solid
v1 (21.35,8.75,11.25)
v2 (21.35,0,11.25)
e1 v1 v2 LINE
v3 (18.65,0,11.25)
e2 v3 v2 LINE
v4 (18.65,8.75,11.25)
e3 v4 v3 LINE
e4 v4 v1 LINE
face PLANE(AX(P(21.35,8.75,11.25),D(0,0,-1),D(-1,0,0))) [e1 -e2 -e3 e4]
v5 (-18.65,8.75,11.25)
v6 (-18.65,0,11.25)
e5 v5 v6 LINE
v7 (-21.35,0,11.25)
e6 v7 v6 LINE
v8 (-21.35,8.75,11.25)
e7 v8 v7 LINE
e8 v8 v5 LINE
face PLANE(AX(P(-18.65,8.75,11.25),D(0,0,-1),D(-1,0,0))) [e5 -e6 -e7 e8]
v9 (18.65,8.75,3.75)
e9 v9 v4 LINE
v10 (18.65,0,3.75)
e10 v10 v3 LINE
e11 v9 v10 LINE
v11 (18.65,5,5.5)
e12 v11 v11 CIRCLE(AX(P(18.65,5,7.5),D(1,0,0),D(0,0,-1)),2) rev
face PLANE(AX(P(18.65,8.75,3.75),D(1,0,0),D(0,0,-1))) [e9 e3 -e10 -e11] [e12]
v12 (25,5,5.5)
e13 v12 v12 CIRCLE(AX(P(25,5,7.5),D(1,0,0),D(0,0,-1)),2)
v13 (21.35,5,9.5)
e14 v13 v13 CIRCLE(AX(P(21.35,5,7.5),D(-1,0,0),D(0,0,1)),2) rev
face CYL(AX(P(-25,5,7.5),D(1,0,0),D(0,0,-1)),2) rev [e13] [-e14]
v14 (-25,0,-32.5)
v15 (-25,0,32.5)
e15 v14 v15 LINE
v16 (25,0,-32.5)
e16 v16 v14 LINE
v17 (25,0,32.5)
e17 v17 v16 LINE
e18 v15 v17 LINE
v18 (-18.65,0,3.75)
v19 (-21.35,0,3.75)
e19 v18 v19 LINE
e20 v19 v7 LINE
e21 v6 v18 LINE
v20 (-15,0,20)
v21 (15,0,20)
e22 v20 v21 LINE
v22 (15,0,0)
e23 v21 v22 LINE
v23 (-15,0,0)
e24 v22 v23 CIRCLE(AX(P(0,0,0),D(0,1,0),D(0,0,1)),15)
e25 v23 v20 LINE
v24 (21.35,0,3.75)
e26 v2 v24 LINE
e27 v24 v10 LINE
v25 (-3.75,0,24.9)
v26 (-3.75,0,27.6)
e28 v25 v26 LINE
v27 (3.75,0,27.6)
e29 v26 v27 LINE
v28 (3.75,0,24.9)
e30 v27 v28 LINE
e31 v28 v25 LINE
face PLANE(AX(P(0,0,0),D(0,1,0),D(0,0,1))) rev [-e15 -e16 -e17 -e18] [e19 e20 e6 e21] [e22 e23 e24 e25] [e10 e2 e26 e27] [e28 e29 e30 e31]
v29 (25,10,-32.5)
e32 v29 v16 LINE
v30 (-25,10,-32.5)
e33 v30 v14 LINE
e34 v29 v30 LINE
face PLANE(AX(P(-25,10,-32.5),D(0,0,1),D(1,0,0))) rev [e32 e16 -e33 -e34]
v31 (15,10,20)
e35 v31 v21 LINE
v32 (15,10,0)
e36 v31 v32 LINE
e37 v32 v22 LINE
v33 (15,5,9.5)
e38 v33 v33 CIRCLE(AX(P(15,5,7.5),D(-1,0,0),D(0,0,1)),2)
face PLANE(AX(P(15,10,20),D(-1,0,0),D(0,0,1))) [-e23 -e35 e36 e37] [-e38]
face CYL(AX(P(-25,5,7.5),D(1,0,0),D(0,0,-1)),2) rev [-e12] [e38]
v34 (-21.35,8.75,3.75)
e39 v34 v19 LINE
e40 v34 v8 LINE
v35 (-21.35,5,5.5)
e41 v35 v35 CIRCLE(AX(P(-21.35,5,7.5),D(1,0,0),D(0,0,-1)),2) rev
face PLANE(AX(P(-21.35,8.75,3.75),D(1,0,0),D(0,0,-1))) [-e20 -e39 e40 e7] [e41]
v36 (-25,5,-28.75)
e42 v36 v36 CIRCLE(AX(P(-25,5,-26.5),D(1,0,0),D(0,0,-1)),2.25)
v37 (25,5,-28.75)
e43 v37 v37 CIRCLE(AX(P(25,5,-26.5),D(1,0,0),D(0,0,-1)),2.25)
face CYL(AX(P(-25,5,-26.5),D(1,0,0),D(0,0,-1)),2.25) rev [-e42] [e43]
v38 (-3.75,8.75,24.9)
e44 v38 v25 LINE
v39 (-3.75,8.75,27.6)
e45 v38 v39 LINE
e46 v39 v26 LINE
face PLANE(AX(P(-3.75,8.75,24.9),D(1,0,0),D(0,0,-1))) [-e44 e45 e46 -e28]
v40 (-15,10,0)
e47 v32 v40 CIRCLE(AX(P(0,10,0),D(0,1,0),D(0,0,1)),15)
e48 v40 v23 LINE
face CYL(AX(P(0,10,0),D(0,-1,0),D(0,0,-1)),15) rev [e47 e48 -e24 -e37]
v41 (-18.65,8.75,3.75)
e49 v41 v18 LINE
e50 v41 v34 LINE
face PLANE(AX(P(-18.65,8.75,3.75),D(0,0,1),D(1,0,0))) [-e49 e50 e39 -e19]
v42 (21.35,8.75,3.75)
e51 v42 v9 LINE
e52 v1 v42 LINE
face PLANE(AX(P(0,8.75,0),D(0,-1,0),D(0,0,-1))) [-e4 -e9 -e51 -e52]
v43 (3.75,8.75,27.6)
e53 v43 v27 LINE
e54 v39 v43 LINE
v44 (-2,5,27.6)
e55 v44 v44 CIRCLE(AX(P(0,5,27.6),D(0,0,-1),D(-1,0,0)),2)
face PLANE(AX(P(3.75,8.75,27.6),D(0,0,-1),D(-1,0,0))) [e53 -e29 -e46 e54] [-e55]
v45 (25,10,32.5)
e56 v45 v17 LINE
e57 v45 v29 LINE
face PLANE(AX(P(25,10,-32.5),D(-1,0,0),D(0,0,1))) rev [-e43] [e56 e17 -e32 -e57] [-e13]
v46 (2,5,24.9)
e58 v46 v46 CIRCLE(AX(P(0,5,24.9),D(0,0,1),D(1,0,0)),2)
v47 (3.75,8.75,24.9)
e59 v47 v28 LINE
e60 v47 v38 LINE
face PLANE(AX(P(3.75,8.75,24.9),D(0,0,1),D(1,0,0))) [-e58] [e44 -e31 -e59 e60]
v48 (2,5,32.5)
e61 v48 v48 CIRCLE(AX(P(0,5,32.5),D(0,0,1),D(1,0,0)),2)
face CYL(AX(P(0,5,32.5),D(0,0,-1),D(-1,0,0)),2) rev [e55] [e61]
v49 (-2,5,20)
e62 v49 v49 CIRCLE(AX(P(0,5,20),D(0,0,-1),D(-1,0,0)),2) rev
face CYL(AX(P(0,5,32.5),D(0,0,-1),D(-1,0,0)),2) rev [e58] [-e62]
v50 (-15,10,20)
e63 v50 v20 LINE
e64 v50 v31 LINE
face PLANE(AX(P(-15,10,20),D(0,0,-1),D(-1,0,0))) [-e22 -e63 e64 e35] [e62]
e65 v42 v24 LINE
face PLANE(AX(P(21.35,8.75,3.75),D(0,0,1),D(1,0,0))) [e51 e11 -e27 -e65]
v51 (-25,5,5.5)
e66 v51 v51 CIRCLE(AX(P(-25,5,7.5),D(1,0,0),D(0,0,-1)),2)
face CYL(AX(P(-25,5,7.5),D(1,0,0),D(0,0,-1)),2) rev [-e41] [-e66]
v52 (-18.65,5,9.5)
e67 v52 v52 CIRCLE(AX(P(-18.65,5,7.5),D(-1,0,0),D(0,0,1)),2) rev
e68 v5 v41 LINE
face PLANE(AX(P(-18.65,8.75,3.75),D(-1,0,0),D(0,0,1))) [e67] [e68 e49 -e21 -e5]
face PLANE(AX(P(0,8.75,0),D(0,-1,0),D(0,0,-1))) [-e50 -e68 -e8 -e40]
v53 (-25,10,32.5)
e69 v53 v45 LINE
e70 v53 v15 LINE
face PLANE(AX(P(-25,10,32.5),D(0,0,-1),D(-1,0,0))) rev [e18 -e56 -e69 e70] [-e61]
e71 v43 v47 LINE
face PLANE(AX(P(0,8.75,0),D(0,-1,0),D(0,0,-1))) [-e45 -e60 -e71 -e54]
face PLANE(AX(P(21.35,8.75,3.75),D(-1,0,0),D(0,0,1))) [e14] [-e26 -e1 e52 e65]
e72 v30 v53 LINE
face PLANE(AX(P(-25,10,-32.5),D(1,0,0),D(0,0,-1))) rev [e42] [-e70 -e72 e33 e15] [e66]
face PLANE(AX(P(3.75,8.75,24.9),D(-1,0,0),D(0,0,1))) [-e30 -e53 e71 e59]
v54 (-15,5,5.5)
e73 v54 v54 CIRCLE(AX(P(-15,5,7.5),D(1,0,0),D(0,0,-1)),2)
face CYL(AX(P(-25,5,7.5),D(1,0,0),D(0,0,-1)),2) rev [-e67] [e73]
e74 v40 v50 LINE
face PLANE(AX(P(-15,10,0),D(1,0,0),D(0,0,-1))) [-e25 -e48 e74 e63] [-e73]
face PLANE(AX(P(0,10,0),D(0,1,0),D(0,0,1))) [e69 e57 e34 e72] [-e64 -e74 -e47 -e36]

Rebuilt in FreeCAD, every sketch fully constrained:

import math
import FreeCAD as App
import Part
import Sketcher

V = App.Vector
Q = App.Units.Quantity


def add_polygon(sketch, points):
    """Adds a closed chain of lines whose ends are joined by coincident constraints."""
    first, n = sketch.GeometryCount, len(points)
    for a, b in zip(points, points[1:] + points[:1]):
        sketch.addGeometry(Part.LineSegment(App.Vector(*a, 0), App.Vector(*b, 0)), False)
    for i in range(n):
        sketch.addConstraint(Sketcher.Constraint("Coincident", first + i, 2, first + (i + 1) % n, 1))

doc = App.newDocument("Part")
body = doc.addObject("PartDesign::Body", "Body")

sketch1 = doc.addObject("Sketcher::SketchObject", "Sketch")
body.addObject(sketch1)
sketch1.AttachmentSupport = (doc.XZ_Plane, [""])
sketch1.MapMode = "FlatFace"
add_polygon(sketch1, [(-25, -32.5), (-25, 32.5), (25, 32.5), (25, -32.5)])
sketch1.addGeometry(Part.LineSegment(V(-15, 20, 0), V(-15, 0, 0)), False)
sketch1.addGeometry(Part.ArcOfCircle(Part.Circle(V(0, 0, 0), V(0, 0, 1), 15), math.radians(180), math.radians(360)), False)
sketch1.addGeometry(Part.LineSegment(V(15, 0, 0), V(15, 20, 0)), False)
sketch1.addGeometry(Part.LineSegment(V(15, 20, 0), V(-15, 20, 0)), False)
sketch1.addConstraint([
    Sketcher.Constraint("Tangent", 4, 2, 5, 1),
    Sketcher.Constraint("Tangent", 5, 2, 6, 1),
    Sketcher.Constraint("Coincident", 6, 2, 7, 1),
    Sketcher.Constraint("Coincident", 7, 2, 4, 1),
    Sketcher.Constraint("Vertical", 0),
    Sketcher.Constraint("Horizontal", 1),
    Sketcher.Constraint("Vertical", 2),
    Sketcher.Constraint("Horizontal", 3),
    Sketcher.Constraint("Vertical", 4),
    Sketcher.Constraint("Vertical", 6),
    Sketcher.Constraint("Horizontal", 7),
    Sketcher.Constraint("Coincident", 5, 3, -1, 1),
    Sketcher.Constraint("Symmetric", 0, 2, 2, 2, -1, 1),
    Sketcher.Constraint("Radius", 5, Q("15 mm")),
    Sketcher.Constraint("DistanceX", 1, 1, 1, 2, Q("50 mm")),
    Sketcher.Constraint("DistanceY", 0, 1, 0, 2, Q("65 mm")),
    Sketcher.Constraint("DistanceY", 4, 2, 4, 1, Q("20 mm")),
])
pad1 = doc.addObject("PartDesign::Pad", "Pad")
body.addObject(pad1)
pad1.Profile = sketch1
pad1.Length = 10
pad1.Reversed = True

sketch2 = doc.addObject("Sketcher::SketchObject", "Sketch001")
body.addObject(sketch2)
sketch2.AttachmentSupport = (doc.YZ_Plane, [""])
sketch2.MapMode = "FlatFace"
sketch2.addGeometry([
    Part.Circle(V(5, 7.5, 0), V(0, 0, 1), 2),
    Part.Circle(V(5, -26.5, 0), V(0, 0, 1), 2.25),
], False)
sketch2.addConstraint([
    Sketcher.Constraint("Vertical", 0, 3, 1, 3),
    Sketcher.Constraint("Diameter", 0, Q("4 mm")),
    Sketcher.Constraint("Diameter", 1, Q("4.5 mm")),
    Sketcher.Constraint("DistanceX", -1, 1, 0, 3, Q("5 mm")),
    Sketcher.Constraint("DistanceY", 1, 3, 0, 3, Q("34 mm")),
    Sketcher.Constraint("DistanceY", -1, 1, 0, 3, Q("7.5 mm")),
])
pocket1 = doc.addObject("PartDesign::Pocket", "Pocket")
body.addObject(pocket1)
pocket1.Profile = sketch2
pocket1.Type = "ThroughAll"
pocket1.Midplane = True

sketch3 = doc.addObject("Sketcher::SketchObject", "Sketch002")
body.addObject(sketch3)
sketch3.AttachmentSupport = (doc.XY_Plane, [""])
sketch3.MapMode = "FlatFace"
sketch3.addGeometry(Part.Circle(V(0, 5, 0), V(0, 0, 1), 2), False)
sketch3.addConstraint([
    Sketcher.Constraint("PointOnObject", 0, 3, -2),
    Sketcher.Constraint("Diameter", 0, Q("4 mm")),
    Sketcher.Constraint("DistanceY", -1, 1, 0, 3, Q("5 mm")),
])
pocket2 = doc.addObject("PartDesign::Pocket", "Pocket001")
body.addObject(pocket2)
pocket2.Profile = sketch3
pocket2.Type = "ThroughAll"
pocket2.Reversed = True

sketch4 = doc.addObject("Sketcher::SketchObject", "Sketch003")
body.addObject(sketch4)
sketch4.AttachmentSupport = (doc.XZ_Plane, [""])
sketch4.MapMode = "FlatFace"
add_polygon(sketch4, [(18.65, 3.75), (18.65, 11.25), (21.35, 11.25), (21.35, 3.75)])
add_polygon(sketch4, [(-21.35, 3.75), (-21.35, 11.25), (-18.65, 11.25), (-18.65, 3.75)])
add_polygon(sketch4, [(-3.75, 24.9), (-3.75, 27.6), (3.75, 27.6), (3.75, 24.9)])
sketch4.addConstraint([
    Sketcher.Constraint("Vertical", 0),
    Sketcher.Constraint("Horizontal", 1),
    Sketcher.Constraint("Vertical", 2),
    Sketcher.Constraint("Horizontal", 3),
    Sketcher.Constraint("Vertical", 4),
    Sketcher.Constraint("Horizontal", 5),
    Sketcher.Constraint("Vertical", 6),
    Sketcher.Constraint("Horizontal", 7),
    Sketcher.Constraint("Vertical", 8),
    Sketcher.Constraint("Horizontal", 9),
    Sketcher.Constraint("Vertical", 10),
    Sketcher.Constraint("Horizontal", 11),
    Sketcher.Constraint("Symmetric", 1, 2, 4, 2, -2),
    Sketcher.Constraint("Symmetric", 3, 2, 6, 2, -2),
    Sketcher.Constraint("Equal", 11, 0),
    Sketcher.Constraint("Equal", 7, 8),
    Sketcher.Constraint("DistanceX", 1, 1, 1, 2, Q("2.7 mm")),
    Sketcher.Constraint("DistanceX", 9, 1, 9, 2, Q("7.5 mm")),
    Sketcher.Constraint("DistanceX", 4, 2, 0, 2, Q("40 mm")),
    Sketcher.Constraint("DistanceY", -1, 1, 8, 2, Q("27.6 mm")),
    Sketcher.Constraint("DistanceX", 5, 2, 8, 2, Q("14.9 mm")),
    Sketcher.Constraint("DistanceY", -1, 1, 0, 2, Q("11.25 mm")),
])
pocket3 = doc.addObject("PartDesign::Pocket", "Pocket002")
body.addObject(pocket3)
pocket3.Profile = sketch4
pocket3.Length = 8.75

doc.recompute()
